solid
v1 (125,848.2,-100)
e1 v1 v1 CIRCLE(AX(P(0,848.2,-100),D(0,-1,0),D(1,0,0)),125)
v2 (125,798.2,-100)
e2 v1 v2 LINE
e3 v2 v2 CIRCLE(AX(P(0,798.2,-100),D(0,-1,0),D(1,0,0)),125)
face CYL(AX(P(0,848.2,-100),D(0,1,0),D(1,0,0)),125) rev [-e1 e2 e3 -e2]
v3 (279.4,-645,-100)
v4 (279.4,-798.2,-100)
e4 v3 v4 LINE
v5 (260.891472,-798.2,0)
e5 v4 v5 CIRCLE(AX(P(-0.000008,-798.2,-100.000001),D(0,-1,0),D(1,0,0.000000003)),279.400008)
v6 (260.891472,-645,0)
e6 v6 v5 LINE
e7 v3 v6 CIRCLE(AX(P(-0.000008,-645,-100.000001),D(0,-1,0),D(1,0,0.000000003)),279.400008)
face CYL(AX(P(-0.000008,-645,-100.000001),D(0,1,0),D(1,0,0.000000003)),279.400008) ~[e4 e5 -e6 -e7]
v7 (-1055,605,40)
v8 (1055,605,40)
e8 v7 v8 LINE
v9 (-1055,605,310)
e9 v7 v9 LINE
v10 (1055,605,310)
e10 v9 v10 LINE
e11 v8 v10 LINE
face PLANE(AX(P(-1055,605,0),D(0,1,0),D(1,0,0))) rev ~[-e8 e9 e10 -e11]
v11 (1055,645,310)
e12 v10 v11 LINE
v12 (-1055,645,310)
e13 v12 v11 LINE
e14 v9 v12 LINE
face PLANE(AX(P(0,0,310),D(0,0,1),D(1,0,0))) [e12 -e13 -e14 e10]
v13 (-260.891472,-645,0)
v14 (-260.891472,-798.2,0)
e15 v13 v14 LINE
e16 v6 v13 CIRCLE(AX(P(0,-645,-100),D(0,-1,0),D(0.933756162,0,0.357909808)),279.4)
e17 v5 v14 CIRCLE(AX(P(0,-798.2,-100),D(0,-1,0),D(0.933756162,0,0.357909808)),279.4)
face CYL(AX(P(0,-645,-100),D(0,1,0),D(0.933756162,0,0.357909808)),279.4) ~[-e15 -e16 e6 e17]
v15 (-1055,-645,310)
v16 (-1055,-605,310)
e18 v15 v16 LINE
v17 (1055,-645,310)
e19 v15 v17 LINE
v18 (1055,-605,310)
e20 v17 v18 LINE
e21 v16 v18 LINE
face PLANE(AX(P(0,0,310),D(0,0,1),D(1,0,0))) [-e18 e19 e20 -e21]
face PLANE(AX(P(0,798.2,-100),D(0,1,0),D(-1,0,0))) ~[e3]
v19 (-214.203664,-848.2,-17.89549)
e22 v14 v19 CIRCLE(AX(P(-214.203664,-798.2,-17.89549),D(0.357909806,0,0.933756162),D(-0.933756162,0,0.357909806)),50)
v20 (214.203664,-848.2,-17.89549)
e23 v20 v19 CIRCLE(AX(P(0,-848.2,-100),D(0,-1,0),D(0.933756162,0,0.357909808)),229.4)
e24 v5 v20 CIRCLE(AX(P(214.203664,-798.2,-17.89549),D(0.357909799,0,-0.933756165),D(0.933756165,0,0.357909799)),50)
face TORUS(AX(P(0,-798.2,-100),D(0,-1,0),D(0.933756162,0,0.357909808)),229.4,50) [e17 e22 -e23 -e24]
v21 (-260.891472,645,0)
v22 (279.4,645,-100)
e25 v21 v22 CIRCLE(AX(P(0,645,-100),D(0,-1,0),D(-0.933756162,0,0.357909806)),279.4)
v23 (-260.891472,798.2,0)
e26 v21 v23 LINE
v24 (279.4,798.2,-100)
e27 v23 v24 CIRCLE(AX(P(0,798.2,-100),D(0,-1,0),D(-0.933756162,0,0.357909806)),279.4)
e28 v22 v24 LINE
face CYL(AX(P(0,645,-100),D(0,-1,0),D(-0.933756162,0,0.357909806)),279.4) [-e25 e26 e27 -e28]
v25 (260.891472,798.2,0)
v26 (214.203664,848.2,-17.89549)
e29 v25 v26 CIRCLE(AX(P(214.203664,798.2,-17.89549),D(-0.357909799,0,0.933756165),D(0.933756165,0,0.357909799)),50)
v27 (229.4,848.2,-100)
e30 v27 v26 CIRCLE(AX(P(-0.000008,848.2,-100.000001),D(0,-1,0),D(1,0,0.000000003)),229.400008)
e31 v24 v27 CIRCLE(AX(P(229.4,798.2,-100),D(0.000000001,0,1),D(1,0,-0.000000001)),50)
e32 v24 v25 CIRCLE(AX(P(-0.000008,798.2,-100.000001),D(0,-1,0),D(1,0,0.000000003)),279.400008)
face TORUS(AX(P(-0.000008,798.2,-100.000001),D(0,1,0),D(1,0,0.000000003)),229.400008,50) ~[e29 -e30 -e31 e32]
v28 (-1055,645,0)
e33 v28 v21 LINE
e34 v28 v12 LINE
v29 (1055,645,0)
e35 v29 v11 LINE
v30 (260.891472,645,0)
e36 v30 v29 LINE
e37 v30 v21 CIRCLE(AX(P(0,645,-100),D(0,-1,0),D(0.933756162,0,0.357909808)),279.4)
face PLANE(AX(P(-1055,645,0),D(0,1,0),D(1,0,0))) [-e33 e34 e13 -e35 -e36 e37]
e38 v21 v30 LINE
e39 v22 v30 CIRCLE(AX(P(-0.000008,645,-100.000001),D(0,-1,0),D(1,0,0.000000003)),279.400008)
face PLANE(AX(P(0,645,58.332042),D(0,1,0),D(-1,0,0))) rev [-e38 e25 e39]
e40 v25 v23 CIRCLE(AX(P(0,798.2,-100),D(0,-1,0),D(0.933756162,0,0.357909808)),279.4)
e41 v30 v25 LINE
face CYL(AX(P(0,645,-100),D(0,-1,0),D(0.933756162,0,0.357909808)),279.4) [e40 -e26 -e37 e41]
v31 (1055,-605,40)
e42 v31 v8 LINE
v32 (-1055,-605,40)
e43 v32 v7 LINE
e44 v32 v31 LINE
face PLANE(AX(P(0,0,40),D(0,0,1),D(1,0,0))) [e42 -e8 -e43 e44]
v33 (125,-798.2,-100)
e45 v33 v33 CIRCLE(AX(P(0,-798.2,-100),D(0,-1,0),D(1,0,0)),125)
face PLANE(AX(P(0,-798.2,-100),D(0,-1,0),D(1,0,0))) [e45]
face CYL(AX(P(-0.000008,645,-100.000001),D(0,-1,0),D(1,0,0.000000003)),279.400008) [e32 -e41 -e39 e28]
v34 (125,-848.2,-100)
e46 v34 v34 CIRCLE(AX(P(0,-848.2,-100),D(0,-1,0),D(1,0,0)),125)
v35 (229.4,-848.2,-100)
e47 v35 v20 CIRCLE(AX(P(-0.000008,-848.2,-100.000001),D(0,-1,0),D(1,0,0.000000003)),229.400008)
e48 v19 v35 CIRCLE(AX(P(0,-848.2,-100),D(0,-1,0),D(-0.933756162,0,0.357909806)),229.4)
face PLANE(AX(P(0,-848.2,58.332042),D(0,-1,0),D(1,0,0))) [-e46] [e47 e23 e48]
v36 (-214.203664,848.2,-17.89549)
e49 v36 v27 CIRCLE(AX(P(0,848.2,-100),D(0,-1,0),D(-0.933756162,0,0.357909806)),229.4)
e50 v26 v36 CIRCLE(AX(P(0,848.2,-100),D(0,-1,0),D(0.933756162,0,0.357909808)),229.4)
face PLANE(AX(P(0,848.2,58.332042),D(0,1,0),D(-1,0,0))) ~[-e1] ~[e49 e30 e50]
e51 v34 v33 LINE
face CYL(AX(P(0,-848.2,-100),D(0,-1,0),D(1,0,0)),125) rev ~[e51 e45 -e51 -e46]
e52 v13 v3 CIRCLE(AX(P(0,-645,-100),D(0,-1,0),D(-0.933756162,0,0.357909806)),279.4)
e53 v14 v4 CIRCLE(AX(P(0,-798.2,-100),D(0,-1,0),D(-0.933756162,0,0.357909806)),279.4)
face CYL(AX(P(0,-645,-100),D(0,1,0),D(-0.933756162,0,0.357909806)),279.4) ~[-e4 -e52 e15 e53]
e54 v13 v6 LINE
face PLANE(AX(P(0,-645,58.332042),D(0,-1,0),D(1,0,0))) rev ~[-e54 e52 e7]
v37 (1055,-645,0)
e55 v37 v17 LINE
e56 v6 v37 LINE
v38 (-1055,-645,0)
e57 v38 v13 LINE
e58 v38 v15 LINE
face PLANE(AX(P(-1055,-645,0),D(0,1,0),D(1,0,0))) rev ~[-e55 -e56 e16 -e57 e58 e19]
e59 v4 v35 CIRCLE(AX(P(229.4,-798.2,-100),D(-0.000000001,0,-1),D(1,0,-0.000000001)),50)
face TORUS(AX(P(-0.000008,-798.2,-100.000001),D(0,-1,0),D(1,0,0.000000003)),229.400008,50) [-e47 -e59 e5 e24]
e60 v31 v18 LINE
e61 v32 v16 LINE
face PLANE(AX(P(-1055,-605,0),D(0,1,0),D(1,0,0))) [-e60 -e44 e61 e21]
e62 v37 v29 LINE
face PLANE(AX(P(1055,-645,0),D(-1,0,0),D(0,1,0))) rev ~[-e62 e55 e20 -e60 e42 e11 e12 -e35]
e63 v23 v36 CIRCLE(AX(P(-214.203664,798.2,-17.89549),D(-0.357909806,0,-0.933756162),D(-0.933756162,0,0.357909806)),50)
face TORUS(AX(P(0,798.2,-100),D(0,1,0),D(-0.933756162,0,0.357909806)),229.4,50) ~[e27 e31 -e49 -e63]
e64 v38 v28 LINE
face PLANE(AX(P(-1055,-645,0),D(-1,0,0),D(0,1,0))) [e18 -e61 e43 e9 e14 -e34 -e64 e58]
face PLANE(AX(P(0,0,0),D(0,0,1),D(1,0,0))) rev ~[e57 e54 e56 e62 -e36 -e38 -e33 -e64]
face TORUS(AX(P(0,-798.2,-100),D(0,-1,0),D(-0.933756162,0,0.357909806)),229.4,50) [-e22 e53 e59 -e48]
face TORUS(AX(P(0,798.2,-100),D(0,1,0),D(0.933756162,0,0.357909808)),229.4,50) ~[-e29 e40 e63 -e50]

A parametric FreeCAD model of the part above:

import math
import FreeCAD as App
import Part
import Sketcher

V = App.Vector


def edges_at(feature, points):
    """Names of the edges that pass closest to the given points."""
    edges = feature.Shape.Edges
    near = lambda p: min(range(len(edges)), key=lambda i: edges[i].distToShape(Part.Vertex(*p))[0])
    return sorted({f"Edge{near(p) + 1}" for p in points})


def faces_at(feature, points):
    """Names of the faces that lie closest to the given points."""
    faces = feature.Shape.Faces
    near = lambda p: min(range(len(faces)), key=lambda i: faces[i].distToShape(Part.Vertex(*p))[0])
    return sorted({f"Face{near(p) + 1}" for p in points})


def add_polygon(sketch, points):
    """Adds a closed chain of lines whose ends are joined by coincident constraints."""
    first, n = sketch.GeometryCount, len(points)
    for a, b in zip(points, points[1:] + points[:1]):
        sketch.addGeometry(Part.LineSegment(App.Vector(*a, 0), App.Vector(*b, 0)), False)
    for i in range(n):
        sketch.addConstraint(Sketcher.Constraint("Coincident", first + i, 2, first + (i + 1) % n, 1))

doc = App.newDocument("Part")
body = doc.addObject("PartDesign::Body", "Body")

# Sketch on XY plane
sketch1 = body.newObject("Sketcher::SketchObject", "Sketch")
sketch1.AttachmentSupport = (doc.getObject("XY_Plane"), [""])
sketch1.MapMode = "FlatFace"
add_polygon(sketch1, [(-1055, 645), (-1055, -645), (1055, -645), (1055, 645)])  # lines 0-3
sketch1.addConstraint([
    Sketcher.Constraint("Vertical", 0),
    Sketcher.Constraint("Horizontal", 1),
    Sketcher.Constraint("Vertical", 2),
    Sketcher.Constraint("Horizontal", 3),
    Sketcher.Constraint("Symmetric", 0, 2, 2, 2, -1, 1),
    Sketcher.Constraint("DistanceX", 1, 1, 1, 2, 2110.0),
    Sketcher.Constraint("DistanceY", 0, 2, 0, 1, 1290.0),
])
pad1 = body.newObject("PartDesign::Pad", "Pad")
pad1.Profile = sketch1
pad1.Length = 310
doc.recompute()

thickness = body.newObject("PartDesign::Thickness", "Thickness")
thickness.Base = (pad1, faces_at(pad1, [(1055, 0, 155), (0, 0, 310), (-1055, 0, 155)]))
thickness.Value = 40
thickness.Reversed = True
thickness.Join = "Arc"

# Sketch on XZ plane
sketch2 = body.newObject("Sketcher::SketchObject", "Sketch001")
sketch2.AttachmentSupport = (doc.getObject("XZ_Plane"), [""])
sketch2.MapMode = "FlatFace"
sketch2.AttachmentOffset = App.Placement(V(0, 0, 645), App.Rotation())
sketch2.addGeometry([
    Part.ArcOfCircle(Part.Circle(V(0, -100, 0), V(0, 0, 1), 279.4), math.radians(20.971886), math.radians(159.028114)),
    Part.ArcOfCircle(Part.Circle(V(0, -100, 0), V(0, 0, 1), 279.4), math.radians(159.028115), math.radians(360)),
    Part.ArcOfCircle(Part.Circle(V(-0.000008, -100.000001, 0), V(0, 0, 1), 279.400008), math.radians(0), math.radians(20.971885)),
], False)
sketch2.addConstraint([
    Sketcher.Constraint("Tangent", 0, 2, 1, 1),
    Sketcher.Constraint("Tangent", 1, 2, 2, 1),
    Sketcher.Constraint("Coincident", 2, 2, 0, 1),
    Sketcher.Constraint("Equal", 0, 1),
    Sketcher.Constraint("Symmetric", 0, 2, 2, 2, -1, 1),
    Sketcher.Constraint("PointOnObject", 0, 3, -2),
    Sketcher.Constraint("Horizontal", 2, 3, 1, 2),
    Sketcher.Constraint("Radius", 0, 279.4),
    Sketcher.Constraint("DistanceY", 0, 3, -1, 1, 100.0),
])
pad2 = body.newObject("PartDesign::Pad", "Pad001")
pad2.Profile = sketch2
pad2.Length = 203.2
doc.recompute()

fillet = body.newObject("PartDesign::Fillet", "Fillet")
fillet.Base = (pad2, edges_at(pad2, [(-50.849, -848.2, -374.734)]))
fillet.Radius = 50

# Sketch on XZ plane
sketch3 = body.newObject("Sketcher::SketchObject", "Sketch002")
sketch3.AttachmentSupport = (doc.getObject("XZ_Plane"), [""])
sketch3.MapMode = "FlatFace"
sketch3.AttachmentOffset = App.Placement(V(0, 0, 848.2), App.Rotation())
sketch3.addGeometry(Part.Circle(V(0, -100, 0), V(0, 0, 1), 125), False)
sketch3.addConstraint([
    Sketcher.Constraint("PointOnObject", 0, 3, -2),
    Sketcher.Constraint("Diameter", 0, 250.0),
    Sketcher.Constraint("DistanceY", 0, 3, -1, 1, 100.0),
])
pocket1 = body.newObject("PartDesign::Pocket", "Pocket")
pocket1.Profile = sketch3
pocket1.Length = 50
body2 = doc.addObject("PartDesign::Body", "Body001")
doc.recompute()

body2.BaseFeature = body
doc.recompute()

mirroring = doc.addObject("Part::Mirroring", "Mirroring")
mirroring.Source = body
mirroring.Base = V(0, 0, 0)
mirroring.Normal = V(0, -1, 0)
body3 = doc.addObject("PartDesign::Body", "Body002")
body3.BaseFeature = mirroring
boolean = body2.newObject("PartDesign::Boolean", "Boolean")
boolean.Type = "Fuse"
boolean.addObjects([body3])
doc.recompute()
mirroring.Visibility = False

doc.recompute()
